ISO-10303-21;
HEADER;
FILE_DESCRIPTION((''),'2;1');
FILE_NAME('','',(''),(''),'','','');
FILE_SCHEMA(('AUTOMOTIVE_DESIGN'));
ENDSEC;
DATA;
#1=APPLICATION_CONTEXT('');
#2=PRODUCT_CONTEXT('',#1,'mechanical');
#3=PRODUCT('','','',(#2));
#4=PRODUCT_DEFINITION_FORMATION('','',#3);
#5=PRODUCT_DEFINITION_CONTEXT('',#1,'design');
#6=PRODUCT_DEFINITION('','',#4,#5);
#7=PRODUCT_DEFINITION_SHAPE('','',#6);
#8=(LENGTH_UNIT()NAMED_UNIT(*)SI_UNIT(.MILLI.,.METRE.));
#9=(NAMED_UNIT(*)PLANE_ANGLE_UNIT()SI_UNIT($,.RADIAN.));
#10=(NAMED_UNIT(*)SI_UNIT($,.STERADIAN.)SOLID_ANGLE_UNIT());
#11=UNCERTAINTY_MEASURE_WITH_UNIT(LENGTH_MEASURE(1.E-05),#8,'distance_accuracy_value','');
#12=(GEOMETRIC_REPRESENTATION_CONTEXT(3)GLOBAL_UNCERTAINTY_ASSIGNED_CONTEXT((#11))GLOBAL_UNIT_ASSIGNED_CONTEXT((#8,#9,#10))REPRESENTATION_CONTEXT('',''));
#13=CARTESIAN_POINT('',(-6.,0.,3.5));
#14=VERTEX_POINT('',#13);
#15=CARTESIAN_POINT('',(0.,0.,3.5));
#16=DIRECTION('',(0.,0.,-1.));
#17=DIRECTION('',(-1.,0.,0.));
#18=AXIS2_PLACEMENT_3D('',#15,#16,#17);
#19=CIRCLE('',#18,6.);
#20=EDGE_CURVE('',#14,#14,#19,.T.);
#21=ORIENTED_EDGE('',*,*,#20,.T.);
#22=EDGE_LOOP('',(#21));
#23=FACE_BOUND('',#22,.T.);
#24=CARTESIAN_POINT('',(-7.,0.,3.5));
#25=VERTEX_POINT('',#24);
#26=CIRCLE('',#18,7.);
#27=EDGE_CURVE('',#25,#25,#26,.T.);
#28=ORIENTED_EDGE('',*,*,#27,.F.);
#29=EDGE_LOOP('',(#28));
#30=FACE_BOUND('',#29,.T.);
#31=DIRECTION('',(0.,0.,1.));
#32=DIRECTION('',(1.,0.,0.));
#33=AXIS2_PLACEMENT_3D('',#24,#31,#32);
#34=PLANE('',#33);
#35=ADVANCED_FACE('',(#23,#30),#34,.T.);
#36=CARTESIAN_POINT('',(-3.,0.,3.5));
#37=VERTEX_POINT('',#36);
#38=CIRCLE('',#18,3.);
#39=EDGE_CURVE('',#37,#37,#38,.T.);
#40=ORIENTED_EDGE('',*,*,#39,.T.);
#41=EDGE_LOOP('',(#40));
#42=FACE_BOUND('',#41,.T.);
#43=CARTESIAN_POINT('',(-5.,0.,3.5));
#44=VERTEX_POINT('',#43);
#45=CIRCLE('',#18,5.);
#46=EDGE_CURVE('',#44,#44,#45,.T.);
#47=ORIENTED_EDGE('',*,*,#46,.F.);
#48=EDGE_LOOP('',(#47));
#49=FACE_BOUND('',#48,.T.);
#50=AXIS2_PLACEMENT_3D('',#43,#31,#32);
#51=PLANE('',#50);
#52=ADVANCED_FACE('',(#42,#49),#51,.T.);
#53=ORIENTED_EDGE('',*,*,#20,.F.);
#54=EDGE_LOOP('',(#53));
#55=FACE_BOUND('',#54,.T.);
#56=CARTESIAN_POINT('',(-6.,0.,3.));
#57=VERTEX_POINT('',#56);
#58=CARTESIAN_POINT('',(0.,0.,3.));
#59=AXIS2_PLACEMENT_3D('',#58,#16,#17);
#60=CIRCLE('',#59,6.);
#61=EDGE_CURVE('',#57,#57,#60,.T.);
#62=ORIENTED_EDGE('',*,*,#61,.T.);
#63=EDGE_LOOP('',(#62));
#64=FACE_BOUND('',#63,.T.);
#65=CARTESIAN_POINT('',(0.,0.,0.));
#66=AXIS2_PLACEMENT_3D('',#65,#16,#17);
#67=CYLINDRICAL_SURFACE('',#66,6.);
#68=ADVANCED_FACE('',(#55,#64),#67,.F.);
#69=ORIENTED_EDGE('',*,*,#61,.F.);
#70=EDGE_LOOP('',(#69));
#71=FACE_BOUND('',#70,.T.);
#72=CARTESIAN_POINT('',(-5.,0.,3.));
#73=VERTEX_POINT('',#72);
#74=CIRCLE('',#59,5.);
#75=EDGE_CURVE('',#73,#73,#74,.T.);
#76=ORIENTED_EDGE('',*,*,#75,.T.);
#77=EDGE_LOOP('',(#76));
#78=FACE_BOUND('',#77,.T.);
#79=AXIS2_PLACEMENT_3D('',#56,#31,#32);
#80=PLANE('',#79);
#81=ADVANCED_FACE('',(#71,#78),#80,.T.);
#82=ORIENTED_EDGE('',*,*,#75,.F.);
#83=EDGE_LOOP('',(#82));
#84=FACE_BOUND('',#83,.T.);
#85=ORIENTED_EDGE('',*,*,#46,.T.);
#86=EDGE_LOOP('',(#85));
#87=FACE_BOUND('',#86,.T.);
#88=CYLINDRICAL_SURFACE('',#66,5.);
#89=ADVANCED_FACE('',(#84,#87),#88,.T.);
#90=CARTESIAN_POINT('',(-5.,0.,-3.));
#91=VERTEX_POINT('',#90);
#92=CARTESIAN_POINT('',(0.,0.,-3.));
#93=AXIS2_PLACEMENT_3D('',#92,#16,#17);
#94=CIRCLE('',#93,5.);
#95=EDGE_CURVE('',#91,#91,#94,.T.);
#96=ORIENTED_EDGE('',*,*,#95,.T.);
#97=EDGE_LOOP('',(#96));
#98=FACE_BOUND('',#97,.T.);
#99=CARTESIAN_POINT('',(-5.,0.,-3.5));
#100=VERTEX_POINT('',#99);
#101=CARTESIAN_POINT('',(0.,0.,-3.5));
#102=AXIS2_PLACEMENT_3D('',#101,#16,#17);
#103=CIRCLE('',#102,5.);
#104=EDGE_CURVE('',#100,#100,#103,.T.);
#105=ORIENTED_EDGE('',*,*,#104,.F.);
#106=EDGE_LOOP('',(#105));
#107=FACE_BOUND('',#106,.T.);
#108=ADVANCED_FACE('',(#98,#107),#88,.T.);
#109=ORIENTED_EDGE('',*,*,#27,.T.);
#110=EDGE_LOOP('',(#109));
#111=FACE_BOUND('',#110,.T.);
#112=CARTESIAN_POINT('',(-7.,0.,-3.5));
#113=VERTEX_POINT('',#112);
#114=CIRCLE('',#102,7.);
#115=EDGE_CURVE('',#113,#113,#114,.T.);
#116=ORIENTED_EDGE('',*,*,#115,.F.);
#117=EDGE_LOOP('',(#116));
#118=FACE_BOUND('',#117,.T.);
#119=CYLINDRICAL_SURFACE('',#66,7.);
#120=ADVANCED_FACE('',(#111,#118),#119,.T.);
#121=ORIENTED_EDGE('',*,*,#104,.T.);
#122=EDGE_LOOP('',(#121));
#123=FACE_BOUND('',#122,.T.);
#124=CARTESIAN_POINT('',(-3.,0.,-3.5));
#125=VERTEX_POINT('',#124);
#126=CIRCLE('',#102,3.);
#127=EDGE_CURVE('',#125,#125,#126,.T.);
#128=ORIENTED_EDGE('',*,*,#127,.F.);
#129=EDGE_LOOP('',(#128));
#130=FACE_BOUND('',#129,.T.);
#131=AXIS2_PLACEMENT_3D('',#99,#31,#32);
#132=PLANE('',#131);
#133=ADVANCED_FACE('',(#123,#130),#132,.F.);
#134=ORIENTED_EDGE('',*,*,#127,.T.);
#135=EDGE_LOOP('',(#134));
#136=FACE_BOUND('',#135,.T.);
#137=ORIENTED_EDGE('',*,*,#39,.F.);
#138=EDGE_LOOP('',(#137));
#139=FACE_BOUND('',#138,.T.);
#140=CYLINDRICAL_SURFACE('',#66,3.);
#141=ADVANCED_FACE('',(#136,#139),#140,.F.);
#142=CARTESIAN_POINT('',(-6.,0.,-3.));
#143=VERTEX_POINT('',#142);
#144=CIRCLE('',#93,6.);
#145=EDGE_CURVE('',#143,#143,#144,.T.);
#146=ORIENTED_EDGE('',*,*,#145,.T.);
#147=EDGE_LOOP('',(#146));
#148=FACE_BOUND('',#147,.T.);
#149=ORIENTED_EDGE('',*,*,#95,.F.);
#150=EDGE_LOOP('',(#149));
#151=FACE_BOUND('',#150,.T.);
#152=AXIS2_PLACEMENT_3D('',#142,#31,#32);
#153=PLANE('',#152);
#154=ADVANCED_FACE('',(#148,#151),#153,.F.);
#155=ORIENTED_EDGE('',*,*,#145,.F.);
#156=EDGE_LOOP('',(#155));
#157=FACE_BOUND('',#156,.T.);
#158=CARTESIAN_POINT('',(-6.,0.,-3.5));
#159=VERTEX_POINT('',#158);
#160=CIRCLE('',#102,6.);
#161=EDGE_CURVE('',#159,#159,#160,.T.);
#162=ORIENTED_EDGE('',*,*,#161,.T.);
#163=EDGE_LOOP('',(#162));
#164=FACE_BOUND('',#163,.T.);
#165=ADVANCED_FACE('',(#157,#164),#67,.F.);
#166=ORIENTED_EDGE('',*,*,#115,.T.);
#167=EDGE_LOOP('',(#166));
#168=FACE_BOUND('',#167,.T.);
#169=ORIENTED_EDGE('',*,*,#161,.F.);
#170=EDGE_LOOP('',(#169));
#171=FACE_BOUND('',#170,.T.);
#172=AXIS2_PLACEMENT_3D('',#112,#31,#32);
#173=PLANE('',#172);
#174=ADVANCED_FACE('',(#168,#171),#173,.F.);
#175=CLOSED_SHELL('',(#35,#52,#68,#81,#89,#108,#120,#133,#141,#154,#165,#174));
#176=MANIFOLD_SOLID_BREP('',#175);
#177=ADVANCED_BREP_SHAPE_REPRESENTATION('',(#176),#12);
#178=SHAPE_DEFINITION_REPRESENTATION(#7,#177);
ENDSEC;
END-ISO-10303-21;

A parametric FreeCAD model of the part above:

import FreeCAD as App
import Part
import Sketcher


def add_polygon(sketch, points):
    """Adds a closed chain of lines whose ends are joined by coincident constraints."""
    first, n = sketch.GeometryCount, len(points)
    for a, b in zip(points, points[1:] + points[:1]):
        sketch.addGeometry(Part.LineSegment(App.Vector(*a, 0), App.Vector(*b, 0)), False)
    for i in range(n):
        sketch.addConstraint(Sketcher.Constraint("Coincident", first + i, 2, first + (i + 1) % n, 1))

doc = App.newDocument("Part")
body = doc.addObject("PartDesign::Body", "Body")

# Sketch on XZ plane
sketch1 = doc.addObject("Sketcher::SketchObject", "Sketch")
body.addObject(sketch1)
sketch1.AttachmentSupport = (doc.XZ_Plane, [""])
sketch1.MapMode = "FlatFace"
add_polygon(sketch1, [(-7, -3.5), (-7, 3.5), (-6, 3.5), (-6, 3), (-5, 3), (-5, 3.5), (-3, 3.5), (-3, -3.5), (-5, -3.5), (-5, -3), (-6, -3), (-6, -3.5)])  # lines 0-11
sketch1.addConstraint([
    Sketcher.Constraint("Vertical", 0),
    Sketcher.Constraint("Horizontal", 1),
    Sketcher.Constraint("Vertical", 2),
    Sketcher.Constraint("Horizontal", 3),
    Sketcher.Constraint("Vertical", 4),
    Sketcher.Constraint("Horizontal", 5),
    Sketcher.Constraint("Vertical", 6),
    Sketcher.Constraint("Horizontal", 7),
    Sketcher.Constraint("Vertical", 8),
    Sketcher.Constraint("Horizontal", 9),
    Sketcher.Constraint("Vertical", 10),
    Sketcher.Constraint("Horizontal", 11),
    Sketcher.Constraint("Symmetric", 4, 2, 7, 2, -1),
    Sketcher.Constraint("Symmetric", 2, 2, 9, 2, -1),
    Sketcher.Constraint("Horizontal", 1, 2, 4, 2),
    Sketcher.Constraint("Horizontal", 7, 2, 10, 2),
    Sketcher.Constraint("Equal", 1, 3),
    Sketcher.Constraint("DistanceX", 1, 1, 1, 2, 1.0),
    Sketcher.Constraint("DistanceX", 5, 1, 5, 2, 2.0),
    Sketcher.Constraint("DistanceY", 0, 1, 0, 2, 7.0),
    Sketcher.Constraint("DistanceY", 2, 2, 2, 1, 0.5),
    Sketcher.Constraint("DistanceX", 0, 2, -1, 1, 7.0),
])
revolution = doc.addObject("PartDesign::Revolution", "Revolution")
body.addObject(revolution)
revolution.Profile = sketch1
revolution.ReferenceAxis = (sketch1, ["V_Axis"])
revolution.Angle = 360

doc.recompute()
